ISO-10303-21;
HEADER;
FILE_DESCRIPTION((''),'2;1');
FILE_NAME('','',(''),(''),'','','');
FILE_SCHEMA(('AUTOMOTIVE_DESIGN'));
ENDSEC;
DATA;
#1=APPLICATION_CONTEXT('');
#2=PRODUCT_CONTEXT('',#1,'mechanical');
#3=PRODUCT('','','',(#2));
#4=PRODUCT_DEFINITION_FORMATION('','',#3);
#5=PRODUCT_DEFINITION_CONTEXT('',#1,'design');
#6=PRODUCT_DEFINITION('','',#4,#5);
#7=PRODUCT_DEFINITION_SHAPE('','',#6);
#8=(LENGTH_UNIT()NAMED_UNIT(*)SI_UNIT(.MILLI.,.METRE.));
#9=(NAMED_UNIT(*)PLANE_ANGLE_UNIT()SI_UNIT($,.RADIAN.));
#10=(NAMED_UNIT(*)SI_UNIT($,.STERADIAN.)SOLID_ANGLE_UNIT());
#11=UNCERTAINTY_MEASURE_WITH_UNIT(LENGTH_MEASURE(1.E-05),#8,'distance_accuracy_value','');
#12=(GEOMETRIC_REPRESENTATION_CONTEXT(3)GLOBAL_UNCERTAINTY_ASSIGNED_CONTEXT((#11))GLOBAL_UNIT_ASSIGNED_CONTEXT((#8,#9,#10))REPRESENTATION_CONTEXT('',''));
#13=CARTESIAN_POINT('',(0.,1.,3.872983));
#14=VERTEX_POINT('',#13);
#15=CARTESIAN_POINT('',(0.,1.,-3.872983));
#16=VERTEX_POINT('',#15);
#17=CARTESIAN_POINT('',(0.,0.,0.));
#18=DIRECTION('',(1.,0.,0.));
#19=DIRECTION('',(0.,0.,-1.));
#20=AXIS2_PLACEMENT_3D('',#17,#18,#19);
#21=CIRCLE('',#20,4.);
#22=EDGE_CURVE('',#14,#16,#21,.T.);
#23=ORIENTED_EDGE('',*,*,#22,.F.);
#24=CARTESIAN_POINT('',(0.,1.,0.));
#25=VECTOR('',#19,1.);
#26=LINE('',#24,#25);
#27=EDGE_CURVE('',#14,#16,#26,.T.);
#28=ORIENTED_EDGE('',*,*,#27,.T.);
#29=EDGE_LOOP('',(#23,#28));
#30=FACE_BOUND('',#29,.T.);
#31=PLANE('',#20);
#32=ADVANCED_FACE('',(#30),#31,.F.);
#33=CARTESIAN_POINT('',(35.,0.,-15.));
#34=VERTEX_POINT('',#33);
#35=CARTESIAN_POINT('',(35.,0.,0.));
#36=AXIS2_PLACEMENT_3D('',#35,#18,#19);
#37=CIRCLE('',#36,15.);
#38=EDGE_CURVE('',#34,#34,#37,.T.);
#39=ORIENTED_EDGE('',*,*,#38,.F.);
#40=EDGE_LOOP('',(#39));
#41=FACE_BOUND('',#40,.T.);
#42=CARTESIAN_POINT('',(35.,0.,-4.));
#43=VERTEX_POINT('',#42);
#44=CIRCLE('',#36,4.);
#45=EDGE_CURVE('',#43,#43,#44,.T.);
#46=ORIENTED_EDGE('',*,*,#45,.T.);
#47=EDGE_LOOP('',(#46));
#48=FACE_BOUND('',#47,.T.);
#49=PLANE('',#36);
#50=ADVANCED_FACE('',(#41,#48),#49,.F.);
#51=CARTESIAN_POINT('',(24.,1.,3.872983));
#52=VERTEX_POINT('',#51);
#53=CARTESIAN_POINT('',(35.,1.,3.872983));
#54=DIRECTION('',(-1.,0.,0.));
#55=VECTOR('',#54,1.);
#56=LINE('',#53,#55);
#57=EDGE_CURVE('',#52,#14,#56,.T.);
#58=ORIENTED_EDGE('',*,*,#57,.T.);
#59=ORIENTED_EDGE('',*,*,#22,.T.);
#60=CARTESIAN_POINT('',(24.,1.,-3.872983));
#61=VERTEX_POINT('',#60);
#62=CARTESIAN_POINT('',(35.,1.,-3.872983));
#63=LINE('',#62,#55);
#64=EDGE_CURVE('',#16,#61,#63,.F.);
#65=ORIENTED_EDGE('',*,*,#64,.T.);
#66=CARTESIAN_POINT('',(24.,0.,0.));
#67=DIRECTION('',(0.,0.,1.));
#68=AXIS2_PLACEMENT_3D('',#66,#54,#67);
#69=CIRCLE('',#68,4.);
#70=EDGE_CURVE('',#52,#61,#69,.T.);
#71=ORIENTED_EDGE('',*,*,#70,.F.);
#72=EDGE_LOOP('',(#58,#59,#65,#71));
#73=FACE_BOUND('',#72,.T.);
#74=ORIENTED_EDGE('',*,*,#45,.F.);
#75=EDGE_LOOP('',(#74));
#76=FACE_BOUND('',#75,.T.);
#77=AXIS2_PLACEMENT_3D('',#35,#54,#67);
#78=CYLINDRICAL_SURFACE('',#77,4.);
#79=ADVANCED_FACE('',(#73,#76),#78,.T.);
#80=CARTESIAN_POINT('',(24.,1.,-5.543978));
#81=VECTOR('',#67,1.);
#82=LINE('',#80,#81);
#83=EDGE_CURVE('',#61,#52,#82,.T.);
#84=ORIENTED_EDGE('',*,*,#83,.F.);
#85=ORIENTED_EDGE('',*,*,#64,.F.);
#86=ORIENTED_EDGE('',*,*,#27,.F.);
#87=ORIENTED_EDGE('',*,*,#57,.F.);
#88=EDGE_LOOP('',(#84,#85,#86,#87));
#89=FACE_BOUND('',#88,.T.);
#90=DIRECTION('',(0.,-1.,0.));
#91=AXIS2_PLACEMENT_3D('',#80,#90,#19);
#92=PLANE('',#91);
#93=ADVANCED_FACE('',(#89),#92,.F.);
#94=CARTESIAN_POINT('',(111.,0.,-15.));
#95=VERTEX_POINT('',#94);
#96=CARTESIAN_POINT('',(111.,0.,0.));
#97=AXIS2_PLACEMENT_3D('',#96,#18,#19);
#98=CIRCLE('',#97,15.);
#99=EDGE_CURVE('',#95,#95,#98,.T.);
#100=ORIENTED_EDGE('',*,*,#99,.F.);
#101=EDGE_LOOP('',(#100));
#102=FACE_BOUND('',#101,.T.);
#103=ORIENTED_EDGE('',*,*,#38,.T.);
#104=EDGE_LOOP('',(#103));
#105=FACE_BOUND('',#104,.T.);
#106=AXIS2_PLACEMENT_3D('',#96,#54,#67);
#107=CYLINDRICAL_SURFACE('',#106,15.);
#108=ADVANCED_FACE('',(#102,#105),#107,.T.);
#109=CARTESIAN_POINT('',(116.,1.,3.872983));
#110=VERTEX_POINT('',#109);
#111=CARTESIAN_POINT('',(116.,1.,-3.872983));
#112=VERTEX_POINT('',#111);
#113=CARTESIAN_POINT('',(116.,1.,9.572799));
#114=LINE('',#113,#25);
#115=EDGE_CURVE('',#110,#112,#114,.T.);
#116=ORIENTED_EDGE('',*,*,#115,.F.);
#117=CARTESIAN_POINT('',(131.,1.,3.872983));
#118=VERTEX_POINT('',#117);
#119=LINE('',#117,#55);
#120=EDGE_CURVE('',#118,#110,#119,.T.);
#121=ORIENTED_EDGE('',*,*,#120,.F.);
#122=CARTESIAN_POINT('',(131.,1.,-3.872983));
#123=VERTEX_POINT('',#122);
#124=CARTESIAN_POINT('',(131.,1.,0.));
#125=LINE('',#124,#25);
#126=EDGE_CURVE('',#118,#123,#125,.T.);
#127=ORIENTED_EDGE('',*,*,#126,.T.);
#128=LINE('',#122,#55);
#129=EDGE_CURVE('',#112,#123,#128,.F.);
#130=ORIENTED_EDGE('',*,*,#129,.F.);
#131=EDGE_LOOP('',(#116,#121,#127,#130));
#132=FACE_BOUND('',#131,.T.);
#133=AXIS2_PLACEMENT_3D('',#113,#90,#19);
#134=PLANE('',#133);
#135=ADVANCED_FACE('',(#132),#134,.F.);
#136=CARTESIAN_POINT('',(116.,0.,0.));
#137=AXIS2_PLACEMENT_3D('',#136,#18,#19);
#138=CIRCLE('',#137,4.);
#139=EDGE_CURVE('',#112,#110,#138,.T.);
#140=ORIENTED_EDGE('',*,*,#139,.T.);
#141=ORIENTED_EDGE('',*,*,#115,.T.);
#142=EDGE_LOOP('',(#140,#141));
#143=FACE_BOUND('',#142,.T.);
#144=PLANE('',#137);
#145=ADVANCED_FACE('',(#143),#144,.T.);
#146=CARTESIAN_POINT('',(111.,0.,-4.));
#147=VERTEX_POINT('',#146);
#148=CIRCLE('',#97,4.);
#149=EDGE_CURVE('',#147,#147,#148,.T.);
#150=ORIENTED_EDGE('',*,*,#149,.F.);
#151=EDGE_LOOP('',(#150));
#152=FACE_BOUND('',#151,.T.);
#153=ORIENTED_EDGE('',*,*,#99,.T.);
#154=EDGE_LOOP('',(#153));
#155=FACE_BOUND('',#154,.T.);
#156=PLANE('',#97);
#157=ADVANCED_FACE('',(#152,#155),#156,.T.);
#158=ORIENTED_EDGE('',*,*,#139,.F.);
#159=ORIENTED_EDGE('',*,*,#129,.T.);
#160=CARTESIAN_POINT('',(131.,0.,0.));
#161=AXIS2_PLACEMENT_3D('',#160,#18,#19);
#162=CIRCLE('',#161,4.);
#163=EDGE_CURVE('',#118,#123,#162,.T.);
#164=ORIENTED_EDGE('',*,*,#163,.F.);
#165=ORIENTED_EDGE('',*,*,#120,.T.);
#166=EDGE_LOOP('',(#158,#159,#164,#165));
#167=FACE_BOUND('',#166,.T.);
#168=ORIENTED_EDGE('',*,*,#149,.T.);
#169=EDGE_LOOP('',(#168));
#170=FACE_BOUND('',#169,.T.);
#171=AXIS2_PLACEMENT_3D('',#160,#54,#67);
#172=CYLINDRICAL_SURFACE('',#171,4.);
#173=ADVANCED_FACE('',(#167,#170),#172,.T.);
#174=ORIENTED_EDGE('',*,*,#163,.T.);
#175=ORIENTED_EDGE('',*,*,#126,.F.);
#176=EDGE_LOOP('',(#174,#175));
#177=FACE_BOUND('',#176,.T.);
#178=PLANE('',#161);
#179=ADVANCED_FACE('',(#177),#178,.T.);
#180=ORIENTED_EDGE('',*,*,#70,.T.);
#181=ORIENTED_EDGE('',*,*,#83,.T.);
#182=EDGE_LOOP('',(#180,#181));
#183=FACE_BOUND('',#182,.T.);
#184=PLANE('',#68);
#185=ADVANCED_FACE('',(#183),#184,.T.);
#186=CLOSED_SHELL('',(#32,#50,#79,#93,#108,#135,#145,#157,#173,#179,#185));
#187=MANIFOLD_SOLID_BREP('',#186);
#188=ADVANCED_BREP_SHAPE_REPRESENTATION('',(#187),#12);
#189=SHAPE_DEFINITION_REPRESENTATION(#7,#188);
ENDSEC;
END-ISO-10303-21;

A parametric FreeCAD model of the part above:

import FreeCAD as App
import Part
import Sketcher

V = App.Vector
Q = App.Units.Quantity

doc = App.newDocument("Part")
body = doc.addObject("PartDesign::Body", "Body")

# Sketch on YZ plane
sketch1 = doc.addObject("Sketcher::SketchObject", "Sketch")
body.addObject(sketch1)
sketch1.AttachmentSupport = (doc.YZ_Plane, [""])
sketch1.MapMode = "FlatFace"
sketch1.addGeometry(Part.Circle(V(0, 0, 0), V(0, 0, 1), 4), False)
sketch1.addConstraint([
    Sketcher.Constraint("Coincident", 0, 3, -1, 1),
    Sketcher.Constraint("Diameter", 0, Q("8 mm")),
])
pad1 = doc.addObject("PartDesign::Pad", "Pad")
body.addObject(pad1)
pad1.Profile = sketch1
pad1.Length = 35

# Sketch on YZ plane
sketch2 = doc.addObject("Sketcher::SketchObject", "Sketch001")
body.addObject(sketch2)
sketch2.AttachmentSupport = (doc.YZ_Plane, [""])
sketch2.MapMode = "FlatFace"
sketch2.AttachmentOffset = App.Placement(V(0, 0, 35), App.Rotation())
sketch2.addGeometry(Part.Circle(V(0, 0, 0), V(0, 0, 1), 15), False)
sketch2.addConstraint([
    Sketcher.Constraint("Coincident", 0, 3, -1, 1),
    Sketcher.Constraint("Diameter", 0, Q("30 mm")),
])
pad2 = doc.addObject("PartDesign::Pad", "Pad001")
body.addObject(pad2)
pad2.Profile = sketch2
pad2.Length = 76

# Sketch on YZ plane
sketch3 = doc.addObject("Sketcher::SketchObject", "Sketch002")
body.addObject(sketch3)
sketch3.AttachmentSupport = (doc.YZ_Plane, [""])
sketch3.MapMode = "FlatFace"
sketch3.AttachmentOffset = App.Placement(V(0, 0, 111), App.Rotation())
sketch3.addGeometry(Part.Circle(V(0, 0, 0), V(0, 0, 1), 4), False)
sketch3.addConstraint([
    Sketcher.Constraint("Coincident", 0, 3, -1, 1),
    Sketcher.Constraint("Diameter", 0, Q("8 mm")),
])
pad3 = doc.addObject("PartDesign::Pad", "Pad002")
body.addObject(pad3)
pad3.Profile = sketch3
pad3.Length = 20

# Sketch on YZ plane
sketch4 = doc.addObject("Sketcher::SketchObject", "Sketch003")
body.addObject(sketch4)
sketch4.AttachmentSupport = (doc.YZ_Plane, [""])
sketch4.MapMode = "FlatFace"
sketch4.addGeometry([
    Part.LineSegment(V(4, -5.5, 0), V(1, -5.5, 0)),
    Part.LineSegment(V(1, -5.5, 0), V(1, 5.5, 0)),
    Part.LineSegment(V(1, 5.5, 0), V(4, 5.5, 0)),
    Part.LineSegment(V(4, 5.5, 0), V(4, -5.5, 0)),
], False)
sketch4.addConstraint([
    Sketcher.Constraint("Coincident", 0, 2, 1, 1),
    Sketcher.Constraint("Coincident", 1, 2, 2, 1),
    Sketcher.Constraint("Coincident", 2, 2, 3, 1),
    Sketcher.Constraint("Coincident", 3, 2, 0, 1),
    Sketcher.Constraint("Horizontal", 0),
    Sketcher.Constraint("Vertical", 1),
    Sketcher.Constraint("Horizontal", 2),
    Sketcher.Constraint("Vertical", 3),
    Sketcher.Constraint("DistanceX", 0, 2, 0, 1, Q("3 mm")),
    Sketcher.Constraint("DistanceX", -1, 1, 0, 2, Q("1 mm")),
    Sketcher.Constraint("DistanceY", 1, 1, 1, 2, Q("11.087957 mm")),
    Sketcher.Constraint("DistanceY", 0, 2, -1, 1, Q("5.543978 mm")),
])
pocket1 = doc.addObject("PartDesign::Pocket", "Pocket")
body.addObject(pocket1)
pocket1.Profile = sketch4
pocket1.Length = 24
pocket1.Reversed = True

# Sketch on YZ plane
sketch5 = doc.addObject("Sketcher::SketchObject", "Sketch004")
body.addObject(sketch5)
sketch5.AttachmentSupport = (doc.YZ_Plane, [""])
sketch5.MapMode = "FlatFace"
sketch5.AttachmentOffset = App.Placement(V(0, 0, 131), App.Rotation())
sketch5.addGeometry([
    Part.LineSegment(V(4, 9.6, 0), V(1, 9.6, 0)),
    Part.LineSegment(V(1, 9.6, 0), V(1, -9.2, 0)),
    Part.LineSegment(V(1, -9.2, 0), V(4, -9.2, 0)),
    Part.LineSegment(V(4, -9.2, 0), V(4, 9.6, 0)),
], False)
sketch5.addConstraint([
    Sketcher.Constraint("Coincident", 0, 2, 1, 1),
    Sketcher.Constraint("Coincident", 1, 2, 2, 1),
    Sketcher.Constraint("Coincident", 2, 2, 3, 1),
    Sketcher.Constraint("Coincident", 3, 2, 0, 1),
    Sketcher.Constraint("Horizontal", 0),
    Sketcher.Constraint("Vertical", 1),
    Sketcher.Constraint("Horizontal", 2),
    Sketcher.Constraint("Vertical", 3),
    Sketcher.Constraint("DistanceX", 0, 2, 0, 1, Q("3 mm")),
    Sketcher.Constraint("DistanceX", -1, 1, 0, 2, Q("1 mm")),
    Sketcher.Constraint("DistanceY", 1, 2, 1, 1, Q("18.763421 mm")),
    Sketcher.Constraint("DistanceY", -1, 1, 0, 2, Q("9.572799 mm")),
])
pocket2 = doc.addObject("PartDesign::Pocket", "Pocket001")
body.addObject(pocket2)
pocket2.Profile = sketch5
pocket2.Length = 15

doc.recompute()
